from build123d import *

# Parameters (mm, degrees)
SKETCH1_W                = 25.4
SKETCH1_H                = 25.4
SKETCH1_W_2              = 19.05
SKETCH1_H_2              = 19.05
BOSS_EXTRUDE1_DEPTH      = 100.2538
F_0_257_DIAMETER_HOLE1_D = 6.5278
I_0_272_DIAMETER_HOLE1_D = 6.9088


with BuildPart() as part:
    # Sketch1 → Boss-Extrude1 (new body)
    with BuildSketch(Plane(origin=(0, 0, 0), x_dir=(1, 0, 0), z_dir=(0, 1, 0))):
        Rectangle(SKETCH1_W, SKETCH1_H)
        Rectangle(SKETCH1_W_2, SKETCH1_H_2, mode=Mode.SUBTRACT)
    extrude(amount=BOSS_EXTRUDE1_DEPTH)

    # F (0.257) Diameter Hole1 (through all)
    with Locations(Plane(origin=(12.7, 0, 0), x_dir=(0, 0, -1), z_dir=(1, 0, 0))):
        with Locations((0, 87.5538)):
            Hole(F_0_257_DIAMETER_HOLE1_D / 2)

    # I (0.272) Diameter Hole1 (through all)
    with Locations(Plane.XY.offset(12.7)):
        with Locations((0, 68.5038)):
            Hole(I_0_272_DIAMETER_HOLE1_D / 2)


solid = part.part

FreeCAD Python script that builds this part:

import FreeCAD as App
import Part
import Sketcher
from FreeCAD import Vector
Q = App.Units.Quantity

doc = App.newDocument("Part")
body = doc.addObject("PartDesign::Body", "Body")

# Sketch on XZ plane
sketch1 = body.newObject("Sketcher::SketchObject", "Sketch")
sketch1.AttachmentSupport = (doc.getObject("XZ_Plane"), [""])
sketch1.MapMode = "FlatFace"
sketch1.addGeometry(Part.LineSegment(Vector(-13, -13, 0), Vector(-13, 13, 0)), False)
sketch1.addGeometry(Part.LineSegment(Vector(-13, 13, 0), Vector(13, 13, 0)), False)
sketch1.addGeometry(Part.LineSegment(Vector(13, 13, 0), Vector(13, -13, 0)), False)
sketch1.addGeometry(Part.LineSegment(Vector(13, -13, 0), Vector(-13, -13, 0)), False)
sketch1.addGeometry(Part.LineSegment(Vector(10, 10, 0), Vector(-10, 10, 0)), False)
sketch1.addGeometry(Part.LineSegment(Vector(-10, 10, 0), Vector(-10, -10, 0)), False)
sketch1.addGeometry(Part.LineSegment(Vector(-10, -10, 0), Vector(10, -10, 0)), False)
sketch1.addGeometry(Part.LineSegment(Vector(10, -10, 0), Vector(10, 10, 0)), False)
sketch1.addConstraint(Sketcher.Constraint("Coincident", 0, 2, 1, 1))
sketch1.addConstraint(Sketcher.Constraint("Coincident", 1, 2, 2, 1))
sketch1.addConstraint(Sketcher.Constraint("Coincident", 2, 2, 3, 1))
sketch1.addConstraint(Sketcher.Constraint("Coincident", 3, 2, 0, 1))
sketch1.addConstraint(Sketcher.Constraint("Coincident", 4, 2, 5, 1))
sketch1.addConstraint(Sketcher.Constraint("Coincident", 5, 2, 6, 1))
sketch1.addConstraint(Sketcher.Constraint("Coincident", 6, 2, 7, 1))
sketch1.addConstraint(Sketcher.Constraint("Coincident", 7, 2, 4, 1))
sketch1.addConstraint(Sketcher.Constraint("Vertical", 0))
sketch1.addConstraint(Sketcher.Constraint("Horizontal", 1))
sketch1.addConstraint(Sketcher.Constraint("Vertical", 2))
sketch1.addConstraint(Sketcher.Constraint("Horizontal", 3))
sketch1.addConstraint(Sketcher.Constraint("Horizontal", 4))
sketch1.addConstraint(Sketcher.Constraint("Vertical", 5))
sketch1.addConstraint(Sketcher.Constraint("Horizontal", 6))
sketch1.addConstraint(Sketcher.Constraint("Vertical", 7))
sketch1.addConstraint(Sketcher.Constraint("Symmetric", 0, 2, 2, 2, -1, 1))
sketch1.addConstraint(Sketcher.Constraint("Symmetric", 4, 2, 6, 2, -1, 1))
sketch1.addConstraint(Sketcher.Constraint("Equal", 3, 0))
sketch1.addConstraint(Sketcher.Constraint("Equal", 6, 5))
sketch1.addConstraint(Sketcher.Constraint("DistanceX", 1, 1, 1, 2, Q("1 in")))
sketch1.addConstraint(Sketcher.Constraint("DistanceX", 4, 2, 4, 1, Q("0.75 in")))
pad1 = body.newObject("PartDesign::Pad", "Pad")
pad1.Profile = sketch1
pad1.Length = Q("3.947 in")
pad1.Reversed = True

# Sketch on YZ plane
sketch2 = body.newObject("Sketcher::SketchObject", "Sketch001")
sketch2.AttachmentSupport = (doc.getObject("YZ_Plane"), [""])
sketch2.MapMode = "FlatFace"
sketch2.AttachmentOffset = App.Placement(Vector(0, 0, 0.5 * 25.4), App.Rotation())
sketch2.addGeometry(Part.Circle(Vector(87.6, 0, 0), Vector(0, 0, 1), 3.3), False)
sketch2.addConstraint(Sketcher.Constraint("PointOnObject", 0, 3, -1))
sketch2.addConstraint(Sketcher.Constraint("Diameter", 0, Q("0.257 in")))
sketch2.addConstraint(Sketcher.Constraint("DistanceX", -1, 1, 0, 3, Q("3.447 in")))
doc.recompute()
hole = body.newObject("PartDesign::Hole", "Hole")
hole.Profile = sketch2
hole.ThreadType = "None"
hole.Diameter = Q("0.257 in")
hole.DepthType = "ThroughAll"

# Sketch on XY plane
sketch3 = body.newObject("Sketcher::SketchObject", "Sketch002")
sketch3.AttachmentSupport = (doc.getObject("XY_Plane"), [""])
sketch3.MapMode = "FlatFace"
sketch3.AttachmentOffset = App.Placement(Vector(0, 0, 0.5 * 25.4), App.Rotation())
sketch3.addGeometry(Part.Circle(Vector(0, 68.5, 0), Vector(0, 0, 1), 3.5), False)
sketch3.addConstraint(Sketcher.Constraint("PointOnObject", 0, 3, -2))
sketch3.addConstraint(Sketcher.Constraint("Diameter", 0, Q("0.272 in")))
sketch3.addConstraint(Sketcher.Constraint("DistanceY", -1, 1, 0, 3, Q("2.697 in")))
doc.recompute()
hole2 = body.newObject("PartDesign::Hole", "Hole001")
hole2.Profile = sketch3
hole2.ThreadType = "None"
hole2.Diameter = Q("0.272 in")
hole2.DepthType = "ThroughAll"

doc.recompute()
